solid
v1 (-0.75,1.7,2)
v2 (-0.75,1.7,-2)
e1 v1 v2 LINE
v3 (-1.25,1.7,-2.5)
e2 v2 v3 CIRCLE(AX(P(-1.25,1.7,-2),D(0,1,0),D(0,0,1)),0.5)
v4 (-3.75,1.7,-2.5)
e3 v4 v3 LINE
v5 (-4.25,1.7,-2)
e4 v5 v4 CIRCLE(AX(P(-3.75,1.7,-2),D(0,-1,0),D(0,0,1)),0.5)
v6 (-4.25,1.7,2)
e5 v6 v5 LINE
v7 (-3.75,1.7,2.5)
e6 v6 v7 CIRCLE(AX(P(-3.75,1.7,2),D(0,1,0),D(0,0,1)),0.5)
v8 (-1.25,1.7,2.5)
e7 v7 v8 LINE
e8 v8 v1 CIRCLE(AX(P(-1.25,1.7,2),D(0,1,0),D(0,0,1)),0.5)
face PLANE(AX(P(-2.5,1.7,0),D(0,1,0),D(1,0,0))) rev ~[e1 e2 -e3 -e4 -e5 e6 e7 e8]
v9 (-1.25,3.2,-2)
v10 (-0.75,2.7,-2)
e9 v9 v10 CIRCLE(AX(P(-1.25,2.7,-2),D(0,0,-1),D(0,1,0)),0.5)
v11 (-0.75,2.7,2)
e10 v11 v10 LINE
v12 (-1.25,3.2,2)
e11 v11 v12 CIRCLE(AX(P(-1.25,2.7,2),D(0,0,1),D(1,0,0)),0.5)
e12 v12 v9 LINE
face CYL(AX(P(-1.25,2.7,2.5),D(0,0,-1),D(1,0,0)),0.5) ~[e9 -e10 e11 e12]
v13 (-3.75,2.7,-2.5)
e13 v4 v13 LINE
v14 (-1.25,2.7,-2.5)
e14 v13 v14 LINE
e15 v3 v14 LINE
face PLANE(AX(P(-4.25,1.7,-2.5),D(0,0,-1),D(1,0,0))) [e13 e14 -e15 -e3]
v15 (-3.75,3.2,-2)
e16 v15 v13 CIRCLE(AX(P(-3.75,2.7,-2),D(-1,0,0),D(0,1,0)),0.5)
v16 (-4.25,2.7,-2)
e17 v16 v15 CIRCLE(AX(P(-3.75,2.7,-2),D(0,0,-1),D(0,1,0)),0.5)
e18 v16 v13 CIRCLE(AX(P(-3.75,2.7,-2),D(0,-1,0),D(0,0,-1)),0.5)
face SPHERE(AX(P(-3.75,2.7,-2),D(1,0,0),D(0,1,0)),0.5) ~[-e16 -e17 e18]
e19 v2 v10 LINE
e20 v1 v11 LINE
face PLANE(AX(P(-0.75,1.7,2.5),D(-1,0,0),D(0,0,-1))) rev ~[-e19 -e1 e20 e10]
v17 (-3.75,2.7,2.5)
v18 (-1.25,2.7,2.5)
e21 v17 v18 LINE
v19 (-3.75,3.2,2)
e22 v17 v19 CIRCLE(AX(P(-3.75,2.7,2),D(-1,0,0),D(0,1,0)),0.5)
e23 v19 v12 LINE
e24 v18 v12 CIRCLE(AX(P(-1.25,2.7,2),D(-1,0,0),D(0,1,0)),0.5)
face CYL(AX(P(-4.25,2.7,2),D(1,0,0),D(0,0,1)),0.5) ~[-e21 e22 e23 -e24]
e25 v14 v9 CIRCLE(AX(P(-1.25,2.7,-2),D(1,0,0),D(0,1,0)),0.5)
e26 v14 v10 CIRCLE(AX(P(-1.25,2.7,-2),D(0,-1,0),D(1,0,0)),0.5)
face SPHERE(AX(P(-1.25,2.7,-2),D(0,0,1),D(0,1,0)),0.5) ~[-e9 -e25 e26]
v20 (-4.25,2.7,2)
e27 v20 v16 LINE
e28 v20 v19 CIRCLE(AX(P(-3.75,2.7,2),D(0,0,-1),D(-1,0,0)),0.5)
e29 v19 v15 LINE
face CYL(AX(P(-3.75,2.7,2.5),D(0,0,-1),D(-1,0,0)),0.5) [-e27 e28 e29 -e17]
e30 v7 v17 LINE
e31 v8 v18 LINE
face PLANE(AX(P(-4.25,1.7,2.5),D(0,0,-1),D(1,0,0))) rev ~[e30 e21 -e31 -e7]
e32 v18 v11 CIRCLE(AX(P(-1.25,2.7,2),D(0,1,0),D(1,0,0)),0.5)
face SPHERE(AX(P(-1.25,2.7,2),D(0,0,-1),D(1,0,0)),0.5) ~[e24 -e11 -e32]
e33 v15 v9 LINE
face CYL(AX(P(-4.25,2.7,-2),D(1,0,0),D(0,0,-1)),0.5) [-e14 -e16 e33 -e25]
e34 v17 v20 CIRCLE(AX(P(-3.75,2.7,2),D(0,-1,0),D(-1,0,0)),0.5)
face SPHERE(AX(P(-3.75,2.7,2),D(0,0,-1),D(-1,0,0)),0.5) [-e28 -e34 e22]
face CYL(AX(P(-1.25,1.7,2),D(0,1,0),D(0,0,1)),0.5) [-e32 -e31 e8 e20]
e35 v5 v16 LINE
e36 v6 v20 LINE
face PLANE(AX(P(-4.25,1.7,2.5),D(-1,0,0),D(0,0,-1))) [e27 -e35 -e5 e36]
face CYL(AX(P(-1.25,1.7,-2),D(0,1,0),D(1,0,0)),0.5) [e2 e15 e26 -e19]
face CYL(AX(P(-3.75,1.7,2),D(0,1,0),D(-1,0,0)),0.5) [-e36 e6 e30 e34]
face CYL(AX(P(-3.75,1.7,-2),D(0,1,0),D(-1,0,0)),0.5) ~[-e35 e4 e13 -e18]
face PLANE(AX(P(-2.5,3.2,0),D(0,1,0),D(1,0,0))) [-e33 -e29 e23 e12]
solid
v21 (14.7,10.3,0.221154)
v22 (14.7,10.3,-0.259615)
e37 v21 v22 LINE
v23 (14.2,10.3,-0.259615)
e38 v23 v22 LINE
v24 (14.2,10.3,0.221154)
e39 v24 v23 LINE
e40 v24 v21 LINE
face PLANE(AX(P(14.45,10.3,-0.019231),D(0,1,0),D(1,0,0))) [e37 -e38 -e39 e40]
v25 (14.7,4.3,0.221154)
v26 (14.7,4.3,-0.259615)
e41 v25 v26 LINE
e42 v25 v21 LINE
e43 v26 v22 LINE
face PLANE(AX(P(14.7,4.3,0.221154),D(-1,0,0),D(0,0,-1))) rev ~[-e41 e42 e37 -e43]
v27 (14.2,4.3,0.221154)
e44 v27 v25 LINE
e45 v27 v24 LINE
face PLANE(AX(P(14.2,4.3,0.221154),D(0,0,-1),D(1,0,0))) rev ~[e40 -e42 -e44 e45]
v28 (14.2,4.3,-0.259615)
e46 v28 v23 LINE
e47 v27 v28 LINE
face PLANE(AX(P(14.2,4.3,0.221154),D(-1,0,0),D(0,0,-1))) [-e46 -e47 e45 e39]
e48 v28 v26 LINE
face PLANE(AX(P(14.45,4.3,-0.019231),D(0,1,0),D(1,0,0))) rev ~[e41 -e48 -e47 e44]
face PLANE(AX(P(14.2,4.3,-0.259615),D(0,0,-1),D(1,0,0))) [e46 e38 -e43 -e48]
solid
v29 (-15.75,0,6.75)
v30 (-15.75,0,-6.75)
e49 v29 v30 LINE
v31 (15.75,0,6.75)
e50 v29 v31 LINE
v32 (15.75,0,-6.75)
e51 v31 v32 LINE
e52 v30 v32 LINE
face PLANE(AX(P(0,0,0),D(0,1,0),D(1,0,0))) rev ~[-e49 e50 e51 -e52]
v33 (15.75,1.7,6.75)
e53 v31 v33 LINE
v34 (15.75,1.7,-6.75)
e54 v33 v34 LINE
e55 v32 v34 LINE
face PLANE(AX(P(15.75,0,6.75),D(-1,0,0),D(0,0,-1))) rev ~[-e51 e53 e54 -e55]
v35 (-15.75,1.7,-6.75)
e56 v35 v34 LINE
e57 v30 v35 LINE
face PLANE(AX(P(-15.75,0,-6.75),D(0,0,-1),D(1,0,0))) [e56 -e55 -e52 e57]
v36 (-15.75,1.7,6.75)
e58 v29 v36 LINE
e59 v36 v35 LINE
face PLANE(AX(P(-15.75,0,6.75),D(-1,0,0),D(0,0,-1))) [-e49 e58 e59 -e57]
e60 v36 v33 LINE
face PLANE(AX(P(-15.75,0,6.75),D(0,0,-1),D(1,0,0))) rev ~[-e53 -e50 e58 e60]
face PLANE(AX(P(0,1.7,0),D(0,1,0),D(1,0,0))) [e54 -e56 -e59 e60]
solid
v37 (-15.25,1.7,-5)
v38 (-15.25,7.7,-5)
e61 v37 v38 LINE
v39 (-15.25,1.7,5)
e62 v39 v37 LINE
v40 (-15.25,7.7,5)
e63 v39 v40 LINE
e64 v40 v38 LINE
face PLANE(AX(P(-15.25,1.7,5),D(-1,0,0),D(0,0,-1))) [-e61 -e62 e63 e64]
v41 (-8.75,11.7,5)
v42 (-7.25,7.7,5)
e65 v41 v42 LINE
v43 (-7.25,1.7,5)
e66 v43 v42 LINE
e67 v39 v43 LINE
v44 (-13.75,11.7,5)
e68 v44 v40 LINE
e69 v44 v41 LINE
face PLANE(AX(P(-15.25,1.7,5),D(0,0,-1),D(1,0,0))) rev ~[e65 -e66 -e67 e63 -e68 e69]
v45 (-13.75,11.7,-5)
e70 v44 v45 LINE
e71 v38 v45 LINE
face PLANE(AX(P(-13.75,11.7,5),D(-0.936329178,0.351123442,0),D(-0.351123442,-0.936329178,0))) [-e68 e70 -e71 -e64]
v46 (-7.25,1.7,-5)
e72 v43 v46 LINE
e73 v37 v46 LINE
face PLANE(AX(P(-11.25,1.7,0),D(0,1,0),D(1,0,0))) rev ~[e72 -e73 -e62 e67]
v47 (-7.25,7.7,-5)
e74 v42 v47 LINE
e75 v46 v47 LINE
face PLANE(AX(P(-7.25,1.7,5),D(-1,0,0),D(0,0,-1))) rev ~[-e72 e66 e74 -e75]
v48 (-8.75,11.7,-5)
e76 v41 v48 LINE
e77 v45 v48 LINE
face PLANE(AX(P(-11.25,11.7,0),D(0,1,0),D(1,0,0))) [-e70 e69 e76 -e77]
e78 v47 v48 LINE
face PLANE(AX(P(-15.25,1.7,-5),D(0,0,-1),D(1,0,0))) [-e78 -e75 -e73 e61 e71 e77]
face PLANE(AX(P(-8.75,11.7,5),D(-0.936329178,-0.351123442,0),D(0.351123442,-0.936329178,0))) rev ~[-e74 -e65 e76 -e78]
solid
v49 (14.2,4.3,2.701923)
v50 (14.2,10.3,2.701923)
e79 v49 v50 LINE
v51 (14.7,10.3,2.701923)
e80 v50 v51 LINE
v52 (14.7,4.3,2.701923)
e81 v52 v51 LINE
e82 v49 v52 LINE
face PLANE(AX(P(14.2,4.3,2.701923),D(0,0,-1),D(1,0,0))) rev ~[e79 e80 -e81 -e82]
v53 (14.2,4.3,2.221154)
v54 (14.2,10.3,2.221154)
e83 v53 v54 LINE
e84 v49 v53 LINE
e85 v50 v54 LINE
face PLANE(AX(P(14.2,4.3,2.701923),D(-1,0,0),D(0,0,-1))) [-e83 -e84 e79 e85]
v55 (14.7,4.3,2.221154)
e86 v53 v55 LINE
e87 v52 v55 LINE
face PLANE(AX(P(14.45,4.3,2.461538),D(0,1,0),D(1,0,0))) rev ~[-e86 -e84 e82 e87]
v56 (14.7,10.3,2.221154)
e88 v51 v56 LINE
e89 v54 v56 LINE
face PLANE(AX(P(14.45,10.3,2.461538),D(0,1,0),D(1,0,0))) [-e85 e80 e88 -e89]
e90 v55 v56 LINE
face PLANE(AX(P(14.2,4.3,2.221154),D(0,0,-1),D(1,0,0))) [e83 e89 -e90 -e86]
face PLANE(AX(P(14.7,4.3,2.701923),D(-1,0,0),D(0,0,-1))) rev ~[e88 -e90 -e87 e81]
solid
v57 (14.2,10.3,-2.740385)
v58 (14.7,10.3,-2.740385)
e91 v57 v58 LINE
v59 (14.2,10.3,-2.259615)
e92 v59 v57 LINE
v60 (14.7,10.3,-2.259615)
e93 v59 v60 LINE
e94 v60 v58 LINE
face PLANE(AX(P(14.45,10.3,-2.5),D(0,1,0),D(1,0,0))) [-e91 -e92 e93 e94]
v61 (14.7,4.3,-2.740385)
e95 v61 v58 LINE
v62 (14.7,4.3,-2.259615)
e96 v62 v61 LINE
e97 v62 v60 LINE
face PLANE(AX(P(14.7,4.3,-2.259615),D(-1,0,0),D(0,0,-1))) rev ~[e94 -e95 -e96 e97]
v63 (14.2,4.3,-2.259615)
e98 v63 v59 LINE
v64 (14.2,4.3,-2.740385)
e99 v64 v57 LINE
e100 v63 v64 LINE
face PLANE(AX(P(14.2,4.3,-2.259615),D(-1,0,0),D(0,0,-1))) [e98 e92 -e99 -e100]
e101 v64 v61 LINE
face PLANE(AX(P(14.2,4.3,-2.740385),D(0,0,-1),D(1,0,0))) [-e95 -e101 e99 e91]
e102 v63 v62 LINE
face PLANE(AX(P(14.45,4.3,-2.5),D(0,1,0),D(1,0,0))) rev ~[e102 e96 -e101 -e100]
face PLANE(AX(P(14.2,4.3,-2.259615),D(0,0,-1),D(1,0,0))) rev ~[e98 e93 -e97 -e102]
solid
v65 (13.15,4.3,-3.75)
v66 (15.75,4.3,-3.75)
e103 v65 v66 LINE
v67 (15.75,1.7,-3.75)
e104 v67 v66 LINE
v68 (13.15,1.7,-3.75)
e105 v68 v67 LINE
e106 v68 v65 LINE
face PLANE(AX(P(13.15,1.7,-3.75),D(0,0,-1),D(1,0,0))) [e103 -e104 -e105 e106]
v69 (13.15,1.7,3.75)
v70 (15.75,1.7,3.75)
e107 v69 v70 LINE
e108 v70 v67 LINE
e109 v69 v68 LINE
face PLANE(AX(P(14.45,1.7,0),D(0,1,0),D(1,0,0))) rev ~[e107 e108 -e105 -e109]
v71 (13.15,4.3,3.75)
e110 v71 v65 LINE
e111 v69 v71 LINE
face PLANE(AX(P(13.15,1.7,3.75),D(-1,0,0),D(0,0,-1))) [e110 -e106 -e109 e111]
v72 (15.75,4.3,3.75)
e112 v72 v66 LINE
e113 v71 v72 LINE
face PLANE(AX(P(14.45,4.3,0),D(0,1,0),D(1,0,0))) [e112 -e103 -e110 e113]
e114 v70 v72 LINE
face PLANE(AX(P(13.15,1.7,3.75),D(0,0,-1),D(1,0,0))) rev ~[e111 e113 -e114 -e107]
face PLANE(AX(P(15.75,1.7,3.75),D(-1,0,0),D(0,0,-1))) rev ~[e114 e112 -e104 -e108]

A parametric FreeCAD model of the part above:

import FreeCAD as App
import Part
import Sketcher

V = App.Vector


def edges_at(feature, points):
    """Names of the edges that pass closest to the given points."""
    edges = feature.Shape.Edges
    near = lambda p: min(range(len(edges)), key=lambda i: edges[i].distToShape(Part.Vertex(*p))[0])
    return sorted({f"Edge{near(p) + 1}" for p in points})


def add_polygon(sketch, points):
    """Adds a closed chain of lines whose ends are joined by coincident constraints."""
    first, n = sketch.GeometryCount, len(points)
    for a, b in zip(points, points[1:] + points[:1]):
        sketch.addGeometry(Part.LineSegment(App.Vector(*a, 0), App.Vector(*b, 0)), False)
    for i in range(n):
        sketch.addConstraint(Sketcher.Constraint("Coincident", first + i, 2, first + (i + 1) % n, 1))

doc = App.newDocument("Part")
body = doc.addObject("PartDesign::Body", "Body")

sketch1 = body.newObject("Sketcher::SketchObject", "Sketch")
sketch1.AttachmentSupport = (doc.getObject("XZ_Plane"), [""])
sketch1.MapMode = "FlatFace"
add_polygon(sketch1, [(-16, -7), (-16, 7), (16, 7), (16, -7)])
sketch1.addConstraint([
    Sketcher.Constraint("Vertical", 0),
    Sketcher.Constraint("Horizontal", 1),
    Sketcher.Constraint("Vertical", 2),
    Sketcher.Constraint("Horizontal", 3),
    Sketcher.Constraint("Symmetric", 0, 2, 2, 2, -1, 1),
    Sketcher.Constraint("DistanceX", 1, 1, 1, 2, 31.5),
    Sketcher.Constraint("DistanceY", 0, 1, 0, 2, 13.5),
])
pad1 = body.newObject("PartDesign::Pad", "Pad")
pad1.Profile = sketch1
pad1.Length = 1.7
pad1.Reversed = True
body2 = doc.addObject("PartDesign::Body", "Body001")

sketch2 = body2.newObject("Sketcher::SketchObject", "Sketch001")
sketch2.AttachmentSupport = (doc.getObject("XZ_Plane001"), [""])
sketch2.MapMode = "FlatFace"
sketch2.AttachmentOffset = App.Placement(V(0, 0, -1.7), App.Rotation())
add_polygon(sketch2, [(13.2, -3.8), (13.2, 3.8), (15.8, 3.8), (15.8, -3.8)])
sketch2.addConstraint([
    Sketcher.Constraint("Vertical", 0),
    Sketcher.Constraint("Horizontal", 1),
    Sketcher.Constraint("Vertical", 2),
    Sketcher.Constraint("Horizontal", 3),
    Sketcher.Constraint("DistanceX", 1, 1, 1, 2, 2.6),
    Sketcher.Constraint("DistanceY", 0, 1, 0, 2, 7.5),
    Sketcher.Constraint("DistanceX", -1, 1, 0, 2, 13.15),
    Sketcher.Constraint("DistanceY", -1, 1, 0, 2, 3.75),
])
pad2 = body2.newObject("PartDesign::Pad", "Pad001")
pad2.Profile = sketch2
pad2.Length = 2.6
pad2.Reversed = True
body3 = doc.addObject("PartDesign::Body", "Body002")

sketch3 = body3.newObject("Sketcher::SketchObject", "Sketch002")
sketch3.AttachmentSupport = (doc.getObject("XZ_Plane002"), [""])
sketch3.MapMode = "FlatFace"
sketch3.AttachmentOffset = App.Placement(V(0, 0, -4.3), App.Rotation())
add_polygon(sketch3, [(14.2, -0.26), (14.2, 0.22), (14.7, 0.22), (14.7, -0.26)])
sketch3.addConstraint([
    Sketcher.Constraint("Vertical", 0),
    Sketcher.Constraint("Horizontal", 1),
    Sketcher.Constraint("Vertical", 2),
    Sketcher.Constraint("Horizontal", 3),
    Sketcher.Constraint("DistanceX", 1, 1, 1, 2, 0.5),
    Sketcher.Constraint("DistanceX", -1, 1, 0, 2, 14.2),
    Sketcher.Constraint("DistanceY", 0, 1, 0, 2, 0.480769),
    Sketcher.Constraint("DistanceY", -1, 1, 0, 2, 0.221154),
])
pad3 = body3.newObject("PartDesign::Pad", "Pad002")
pad3.Profile = sketch3
pad3.Length = 6
pad3.Reversed = True
body4 = doc.addObject("PartDesign::Body", "Body003")

sketch4 = body4.newObject("Sketcher::SketchObject", "Sketch003")
sketch4.AttachmentSupport = (doc.getObject("XZ_Plane003"), [""])
sketch4.MapMode = "FlatFace"
sketch4.AttachmentOffset = App.Placement(V(0, 0, -4.3), App.Rotation())
add_polygon(sketch4, [(14.2, -2.74), (14.2, -2.26), (14.7, -2.26), (14.7, -2.74)])
sketch4.addConstraint([
    Sketcher.Constraint("Vertical", 0),
    Sketcher.Constraint("Horizontal", 1),
    Sketcher.Constraint("Vertical", 2),
    Sketcher.Constraint("Horizontal", 3),
    Sketcher.Constraint("DistanceX", 1, 1, 1, 2, 0.5),
    Sketcher.Constraint("DistanceX", -1, 1, 0, 2, 14.2),
    Sketcher.Constraint("DistanceY", 0, 1, 0, 2, 0.480769),
    Sketcher.Constraint("DistanceY", 0, 2, -1, 1, 2.259615),
])
pad4 = body4.newObject("PartDesign::Pad", "Pad003")
pad4.Profile = sketch4
pad4.Length = 6
pad4.Reversed = True
body5 = doc.addObject("PartDesign::Body", "Body004")

sketch5 = body5.newObject("Sketcher::SketchObject", "Sketch004")
sketch5.AttachmentSupport = (doc.getObject("XZ_Plane004"), [""])
sketch5.MapMode = "FlatFace"
sketch5.AttachmentOffset = App.Placement(V(0, 0, -4.3), App.Rotation())
add_polygon(sketch5, [(14.2, 2.22), (14.2, 2.7), (14.7, 2.7), (14.7, 2.22)])
sketch5.addConstraint([
    Sketcher.Constraint("Vertical", 0),
    Sketcher.Constraint("Horizontal", 1),
    Sketcher.Constraint("Vertical", 2),
    Sketcher.Constraint("Horizontal", 3),
    Sketcher.Constraint("DistanceX", 1, 1, 1, 2, 0.5),
    Sketcher.Constraint("DistanceX", -1, 1, 0, 2, 14.2),
    Sketcher.Constraint("DistanceY", 0, 1, 0, 2, 0.480769),
    Sketcher.Constraint("DistanceY", -1, 1, 0, 2, 2.701923),
])
pad5 = body5.newObject("PartDesign::Pad", "Pad004")
pad5.Profile = sketch5
pad5.Length = 6
pad5.Reversed = True
body6 = doc.addObject("PartDesign::Body", "Body005")

sketch6 = body6.newObject("Sketcher::SketchObject", "Sketch005")
sketch6.AttachmentSupport = (doc.getObject("XZ_Plane005"), [""])
sketch6.MapMode = "FlatFace"
sketch6.AttachmentOffset = App.Placement(V(0, 0, -1.7), App.Rotation())
add_polygon(sketch6, [(-15, -5), (-15, 5), (-7, 5), (-7, -5)])
sketch6.addConstraint([
    Sketcher.Constraint("Vertical", 0),
    Sketcher.Constraint("Horizontal", 1),
    Sketcher.Constraint("Vertical", 2),
    Sketcher.Constraint("Horizontal", 3),
    Sketcher.Constraint("DistanceX", 1, 1, 1, 2, 8.0),
    Sketcher.Constraint("DistanceY", 0, 1, 0, 2, 10.0),
    Sketcher.Constraint("DistanceY", -1, 1, 0, 2, 5.0),
    Sketcher.Constraint("DistanceX", 0, 2, -1, 1, 15.25),
])
pad6 = body6.newObject("PartDesign::Pad", "Pad005")
pad6.Profile = sketch6
pad6.Length = 10
pad6.Reversed = True

sketch7 = body6.newObject("Sketcher::SketchObject", "Sketch006")
sketch7.AttachmentSupport = (doc.getObject("XY_Plane005"), [""])
sketch7.MapMode = "FlatFace"
sketch7.AttachmentOffset = App.Placement(V(0, 0, 5), App.Rotation())
add_polygon(sketch7, [(-8.8, 11.7), (-7.2, 7.7), (-7.2, 11.7)])
add_polygon(sketch7, [(-15.2, 11.7), (-15.2, 7.7), (-13.8, 11.7)])
sketch7.addConstraint([
    Sketcher.Constraint("Vertical", 1),
    Sketcher.Constraint("Horizontal", 2),
    Sketcher.Constraint("Vertical", 3),
    Sketcher.Constraint("Horizontal", 5),
    Sketcher.Constraint("Horizontal", 0, 2, 3, 2),
    Sketcher.Constraint("Horizontal", 2, 2, 4, 2),
    Sketcher.Constraint("Equal", 2, 5),
    Sketcher.Constraint("DistanceY", 1, 1, 1, 2, 4.0),
    Sketcher.Constraint("DistanceX", 2, 2, 2, 1, 1.5),
    Sketcher.Constraint("DistanceX", 3, 2, 0, 2, 8.0),
    Sketcher.Constraint("DistanceY", -1, 1, 0, 2, 7.7),
    Sketcher.Constraint("DistanceX", 0, 2, -1, 1, 7.25),
])
pocket1 = body6.newObject("PartDesign::Pocket", "Pocket")
pocket1.Profile = sketch7
pocket1.Type = "ThroughAll"
body7 = doc.addObject("PartDesign::Body", "Body006")

sketch8 = body7.newObject("Sketcher::SketchObject", "Sketch007")
sketch8.AttachmentSupport = (doc.getObject("XZ_Plane006"), [""])
sketch8.MapMode = "FlatFace"
sketch8.AttachmentOffset = App.Placement(V(0, 0, -1.7), App.Rotation())
add_polygon(sketch8, [(-4.2, -2.5), (-4.2, 2.5), (-0.8, 2.5), (-0.8, -2.5)])
sketch8.addConstraint([
    Sketcher.Constraint("Vertical", 0),
    Sketcher.Constraint("Horizontal", 1),
    Sketcher.Constraint("Vertical", 2),
    Sketcher.Constraint("Horizontal", 3),
    Sketcher.Constraint("DistanceY", 0, 1, 0, 2, 5.0),
    Sketcher.Constraint("DistanceX", 1, 1, 1, 2, 3.5),
    Sketcher.Constraint("DistanceY", -1, 1, 0, 2, 2.5),
    Sketcher.Constraint("DistanceX", 0, 2, -1, 1, 4.25),
])
pad7 = body7.newObject("PartDesign::Pad", "Pad006")
pad7.Profile = sketch8
pad7.Length = 1.5
pad7.Reversed = True
doc.recompute()

fillet = body7.newObject("PartDesign::Fillet", "Fillet")
fillet.Base = (pad7, edges_at(pad7, [
    (-0.75, 3.2, 0),
    (-2.5, 3.2, -2.5),
    (-4.25, 3.2, 0),
    (-4.25, 2.45, -2.5),
    (-0.75, 2.45, -2.5),
    (-0.75, 2.45, 2.5),
    (-4.25, 2.45, 2.5),
    (-2.5, 3.2, 2.5),
]))
fillet.Radius = 0.5

doc.recompute()
